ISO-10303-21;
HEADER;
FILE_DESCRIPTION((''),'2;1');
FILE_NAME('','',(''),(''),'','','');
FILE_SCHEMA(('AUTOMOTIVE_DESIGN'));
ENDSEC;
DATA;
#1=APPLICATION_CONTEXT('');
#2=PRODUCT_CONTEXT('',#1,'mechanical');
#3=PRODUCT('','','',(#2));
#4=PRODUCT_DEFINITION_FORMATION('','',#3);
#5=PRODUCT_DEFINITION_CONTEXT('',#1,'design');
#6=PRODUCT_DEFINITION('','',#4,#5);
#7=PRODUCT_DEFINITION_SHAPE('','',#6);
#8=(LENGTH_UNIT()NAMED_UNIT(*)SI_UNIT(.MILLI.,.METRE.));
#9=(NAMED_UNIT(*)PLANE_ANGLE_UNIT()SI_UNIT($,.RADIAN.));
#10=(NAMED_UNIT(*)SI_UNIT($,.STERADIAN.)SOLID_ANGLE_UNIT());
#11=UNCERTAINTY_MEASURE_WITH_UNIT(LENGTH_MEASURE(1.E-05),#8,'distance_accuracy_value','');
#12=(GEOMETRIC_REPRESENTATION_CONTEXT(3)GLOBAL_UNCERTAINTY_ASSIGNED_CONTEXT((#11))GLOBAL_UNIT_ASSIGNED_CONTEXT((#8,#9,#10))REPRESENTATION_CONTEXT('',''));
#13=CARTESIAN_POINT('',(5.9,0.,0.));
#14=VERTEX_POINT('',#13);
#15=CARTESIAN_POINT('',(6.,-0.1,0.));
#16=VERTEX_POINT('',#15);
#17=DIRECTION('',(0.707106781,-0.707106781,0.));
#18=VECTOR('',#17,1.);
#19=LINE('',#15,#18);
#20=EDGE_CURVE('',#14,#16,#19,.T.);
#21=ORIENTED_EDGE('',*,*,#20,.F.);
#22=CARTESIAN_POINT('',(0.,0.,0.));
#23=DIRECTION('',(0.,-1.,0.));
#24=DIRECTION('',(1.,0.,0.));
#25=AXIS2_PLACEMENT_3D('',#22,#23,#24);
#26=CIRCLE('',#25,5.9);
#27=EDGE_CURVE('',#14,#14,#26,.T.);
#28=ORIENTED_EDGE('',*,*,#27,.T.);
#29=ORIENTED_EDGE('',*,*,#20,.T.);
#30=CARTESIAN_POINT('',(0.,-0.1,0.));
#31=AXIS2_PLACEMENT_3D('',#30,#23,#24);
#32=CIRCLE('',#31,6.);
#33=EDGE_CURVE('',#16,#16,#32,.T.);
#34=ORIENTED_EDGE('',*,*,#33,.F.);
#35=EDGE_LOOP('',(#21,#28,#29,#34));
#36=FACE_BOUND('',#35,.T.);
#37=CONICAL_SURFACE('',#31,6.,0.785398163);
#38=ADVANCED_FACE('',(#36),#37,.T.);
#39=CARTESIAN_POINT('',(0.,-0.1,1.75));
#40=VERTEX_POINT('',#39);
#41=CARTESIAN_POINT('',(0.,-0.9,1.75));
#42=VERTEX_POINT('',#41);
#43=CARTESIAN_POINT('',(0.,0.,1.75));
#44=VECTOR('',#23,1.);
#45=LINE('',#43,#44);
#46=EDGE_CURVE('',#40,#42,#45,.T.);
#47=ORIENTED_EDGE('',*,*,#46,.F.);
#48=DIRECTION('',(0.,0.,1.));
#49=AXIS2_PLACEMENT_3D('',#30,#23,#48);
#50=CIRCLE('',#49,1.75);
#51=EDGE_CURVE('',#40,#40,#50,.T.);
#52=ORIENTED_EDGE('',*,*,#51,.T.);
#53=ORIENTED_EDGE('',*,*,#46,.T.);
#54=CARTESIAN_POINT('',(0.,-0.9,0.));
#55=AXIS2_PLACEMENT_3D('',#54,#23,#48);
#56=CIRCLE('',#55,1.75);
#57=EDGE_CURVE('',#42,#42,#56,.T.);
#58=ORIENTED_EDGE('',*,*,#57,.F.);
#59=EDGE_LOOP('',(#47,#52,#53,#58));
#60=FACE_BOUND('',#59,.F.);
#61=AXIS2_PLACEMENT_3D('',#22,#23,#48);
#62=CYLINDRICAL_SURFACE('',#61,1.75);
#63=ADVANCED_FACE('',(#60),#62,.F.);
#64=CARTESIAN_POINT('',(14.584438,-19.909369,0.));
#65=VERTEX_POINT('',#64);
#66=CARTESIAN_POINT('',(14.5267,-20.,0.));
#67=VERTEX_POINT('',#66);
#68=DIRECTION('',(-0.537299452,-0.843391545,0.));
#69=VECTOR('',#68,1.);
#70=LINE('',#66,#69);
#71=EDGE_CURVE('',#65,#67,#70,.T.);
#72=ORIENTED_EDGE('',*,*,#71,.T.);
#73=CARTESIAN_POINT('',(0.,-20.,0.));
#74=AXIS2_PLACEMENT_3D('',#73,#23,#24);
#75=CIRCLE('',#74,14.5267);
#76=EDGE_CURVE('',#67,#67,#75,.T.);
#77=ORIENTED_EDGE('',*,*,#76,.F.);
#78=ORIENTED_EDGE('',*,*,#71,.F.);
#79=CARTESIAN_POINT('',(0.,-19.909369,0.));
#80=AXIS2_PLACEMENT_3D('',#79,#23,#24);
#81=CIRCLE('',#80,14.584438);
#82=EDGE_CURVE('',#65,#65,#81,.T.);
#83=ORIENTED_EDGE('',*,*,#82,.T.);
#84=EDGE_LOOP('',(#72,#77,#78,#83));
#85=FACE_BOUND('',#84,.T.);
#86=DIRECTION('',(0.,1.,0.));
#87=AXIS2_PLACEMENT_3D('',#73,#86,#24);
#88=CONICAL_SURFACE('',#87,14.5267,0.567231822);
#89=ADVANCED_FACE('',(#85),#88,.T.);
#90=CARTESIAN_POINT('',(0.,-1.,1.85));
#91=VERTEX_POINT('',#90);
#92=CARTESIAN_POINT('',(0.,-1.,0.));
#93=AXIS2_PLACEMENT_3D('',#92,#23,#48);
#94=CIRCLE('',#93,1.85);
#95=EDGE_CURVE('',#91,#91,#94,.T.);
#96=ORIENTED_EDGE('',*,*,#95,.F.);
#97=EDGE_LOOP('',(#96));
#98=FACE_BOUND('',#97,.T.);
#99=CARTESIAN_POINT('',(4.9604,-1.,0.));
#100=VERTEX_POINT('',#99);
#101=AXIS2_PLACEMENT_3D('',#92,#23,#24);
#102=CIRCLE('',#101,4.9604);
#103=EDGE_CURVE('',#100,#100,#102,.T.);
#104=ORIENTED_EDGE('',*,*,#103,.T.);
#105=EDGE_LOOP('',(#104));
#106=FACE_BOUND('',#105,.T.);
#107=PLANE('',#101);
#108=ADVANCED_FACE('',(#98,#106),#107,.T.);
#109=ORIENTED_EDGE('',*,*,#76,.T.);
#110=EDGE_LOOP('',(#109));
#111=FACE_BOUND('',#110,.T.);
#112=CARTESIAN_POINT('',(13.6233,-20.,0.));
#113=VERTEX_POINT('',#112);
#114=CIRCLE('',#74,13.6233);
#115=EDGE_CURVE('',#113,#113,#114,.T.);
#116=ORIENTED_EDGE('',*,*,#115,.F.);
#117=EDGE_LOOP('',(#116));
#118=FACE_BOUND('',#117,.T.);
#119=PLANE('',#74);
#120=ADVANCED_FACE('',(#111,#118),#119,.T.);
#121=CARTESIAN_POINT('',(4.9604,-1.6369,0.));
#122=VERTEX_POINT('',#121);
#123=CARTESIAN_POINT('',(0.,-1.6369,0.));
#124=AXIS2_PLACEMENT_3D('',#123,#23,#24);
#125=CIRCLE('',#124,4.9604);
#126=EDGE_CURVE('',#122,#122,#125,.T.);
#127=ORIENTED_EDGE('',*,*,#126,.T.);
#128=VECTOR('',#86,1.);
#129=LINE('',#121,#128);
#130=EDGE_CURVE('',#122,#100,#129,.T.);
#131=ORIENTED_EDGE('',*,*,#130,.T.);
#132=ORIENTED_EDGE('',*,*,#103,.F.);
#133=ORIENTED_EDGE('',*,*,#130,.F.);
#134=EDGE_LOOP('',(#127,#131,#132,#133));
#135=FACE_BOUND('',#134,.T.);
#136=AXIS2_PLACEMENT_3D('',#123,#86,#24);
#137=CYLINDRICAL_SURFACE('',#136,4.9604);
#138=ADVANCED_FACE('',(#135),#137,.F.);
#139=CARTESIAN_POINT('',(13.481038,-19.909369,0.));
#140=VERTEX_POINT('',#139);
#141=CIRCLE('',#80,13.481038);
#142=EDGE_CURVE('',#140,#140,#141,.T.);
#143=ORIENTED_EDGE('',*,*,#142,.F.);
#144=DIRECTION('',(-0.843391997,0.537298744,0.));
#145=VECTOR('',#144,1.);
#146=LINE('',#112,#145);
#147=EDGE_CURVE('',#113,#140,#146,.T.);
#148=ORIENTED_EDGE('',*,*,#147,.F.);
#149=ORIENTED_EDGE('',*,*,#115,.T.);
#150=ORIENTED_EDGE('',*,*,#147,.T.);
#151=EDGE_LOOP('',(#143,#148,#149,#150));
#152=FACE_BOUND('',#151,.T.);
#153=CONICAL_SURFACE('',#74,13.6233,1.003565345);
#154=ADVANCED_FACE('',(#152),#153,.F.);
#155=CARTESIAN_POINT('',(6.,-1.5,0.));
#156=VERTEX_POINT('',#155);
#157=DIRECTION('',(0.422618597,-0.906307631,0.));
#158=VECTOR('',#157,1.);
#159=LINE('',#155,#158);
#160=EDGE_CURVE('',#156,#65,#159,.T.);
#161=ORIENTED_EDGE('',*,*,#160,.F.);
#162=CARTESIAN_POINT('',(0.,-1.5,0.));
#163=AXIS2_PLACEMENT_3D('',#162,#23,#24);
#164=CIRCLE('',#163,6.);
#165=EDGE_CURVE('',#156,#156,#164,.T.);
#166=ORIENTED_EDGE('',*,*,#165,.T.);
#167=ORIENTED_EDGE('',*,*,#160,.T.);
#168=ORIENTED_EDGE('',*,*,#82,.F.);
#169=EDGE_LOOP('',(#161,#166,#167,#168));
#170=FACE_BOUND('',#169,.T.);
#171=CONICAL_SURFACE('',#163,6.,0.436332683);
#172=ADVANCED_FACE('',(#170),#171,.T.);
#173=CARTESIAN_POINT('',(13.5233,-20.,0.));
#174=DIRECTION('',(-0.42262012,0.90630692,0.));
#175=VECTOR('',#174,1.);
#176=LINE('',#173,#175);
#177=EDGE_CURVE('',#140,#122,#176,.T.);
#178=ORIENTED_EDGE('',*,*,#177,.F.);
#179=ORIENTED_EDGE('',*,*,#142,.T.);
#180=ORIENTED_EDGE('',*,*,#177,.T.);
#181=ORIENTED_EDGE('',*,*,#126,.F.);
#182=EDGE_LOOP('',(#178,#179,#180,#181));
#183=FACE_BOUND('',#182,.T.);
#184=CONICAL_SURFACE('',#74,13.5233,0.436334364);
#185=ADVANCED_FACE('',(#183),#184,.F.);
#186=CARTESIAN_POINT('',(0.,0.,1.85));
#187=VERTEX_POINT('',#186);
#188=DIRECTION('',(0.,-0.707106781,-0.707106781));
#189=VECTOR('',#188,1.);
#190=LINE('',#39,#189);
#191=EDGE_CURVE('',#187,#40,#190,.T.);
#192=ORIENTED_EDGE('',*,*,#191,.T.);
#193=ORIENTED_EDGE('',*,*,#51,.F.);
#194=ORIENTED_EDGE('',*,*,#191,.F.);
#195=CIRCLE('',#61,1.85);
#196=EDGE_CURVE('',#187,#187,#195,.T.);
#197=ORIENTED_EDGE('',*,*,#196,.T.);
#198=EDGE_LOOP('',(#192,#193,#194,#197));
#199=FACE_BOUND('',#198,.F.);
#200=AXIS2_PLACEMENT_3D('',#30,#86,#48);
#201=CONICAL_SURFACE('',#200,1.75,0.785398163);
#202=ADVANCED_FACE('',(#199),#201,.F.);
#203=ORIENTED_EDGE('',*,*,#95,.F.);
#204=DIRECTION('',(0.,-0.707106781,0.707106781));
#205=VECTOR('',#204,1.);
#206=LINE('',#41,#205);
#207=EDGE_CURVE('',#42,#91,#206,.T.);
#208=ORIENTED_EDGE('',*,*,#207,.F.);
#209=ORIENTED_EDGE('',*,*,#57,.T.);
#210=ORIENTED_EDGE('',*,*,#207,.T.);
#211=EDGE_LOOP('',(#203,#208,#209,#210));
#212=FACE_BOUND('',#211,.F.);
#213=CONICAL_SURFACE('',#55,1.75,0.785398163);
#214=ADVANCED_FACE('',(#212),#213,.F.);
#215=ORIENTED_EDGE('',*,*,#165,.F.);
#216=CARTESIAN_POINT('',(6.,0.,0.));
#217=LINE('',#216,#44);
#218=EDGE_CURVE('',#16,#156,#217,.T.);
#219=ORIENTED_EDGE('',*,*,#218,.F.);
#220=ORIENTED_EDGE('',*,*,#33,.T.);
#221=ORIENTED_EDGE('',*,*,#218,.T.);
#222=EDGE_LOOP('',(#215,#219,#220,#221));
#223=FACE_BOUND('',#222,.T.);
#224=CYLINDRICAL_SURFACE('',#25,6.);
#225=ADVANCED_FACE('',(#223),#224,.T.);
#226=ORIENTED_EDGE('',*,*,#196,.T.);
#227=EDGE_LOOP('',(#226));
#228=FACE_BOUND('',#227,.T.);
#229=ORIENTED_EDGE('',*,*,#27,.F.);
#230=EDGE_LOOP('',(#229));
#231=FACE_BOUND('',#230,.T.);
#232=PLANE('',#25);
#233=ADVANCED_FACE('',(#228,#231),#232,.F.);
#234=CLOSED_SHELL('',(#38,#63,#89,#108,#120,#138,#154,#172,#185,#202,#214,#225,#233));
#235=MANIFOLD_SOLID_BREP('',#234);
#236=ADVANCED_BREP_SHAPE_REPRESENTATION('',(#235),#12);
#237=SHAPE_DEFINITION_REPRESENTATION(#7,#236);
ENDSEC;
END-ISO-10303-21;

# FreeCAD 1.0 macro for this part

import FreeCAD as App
import Part
import Sketcher
from FreeCAD import Vector
Q = App.Units.Quantity


def edges_at(feature, points):
    """Names of the edges that pass closest to the given points."""
    edges = feature.Shape.Edges
    near = lambda p: min(range(len(edges)), key=lambda i: edges[i].distToShape(Part.Vertex(*p))[0])
    return sorted({f"Edge{near(p) + 1}" for p in points})

doc = App.newDocument("Part")
body = doc.addObject("PartDesign::Body", "Body")

sketch1 = body.newObject("Sketcher::SketchObject", "Sketch")
sketch1.AttachmentSupport = (doc.getObject("XY_Plane"), [""])
sketch1.MapMode = "FlatFace"
sketch1.addGeometry(Part.LineSegment(Vector(6, 0, 0), Vector(0, 0, 0)), False)
sketch1.addGeometry(Part.LineSegment(Vector(0, 0, 0), Vector(0, -1, 0)), False)
sketch1.addGeometry(Part.LineSegment(Vector(0, -1, 0), Vector(5, -1, 0)), False)
sketch1.addGeometry(Part.LineSegment(Vector(5, -1, 0), Vector(5, -1.6, 0)), False)
sketch1.addGeometry(Part.LineSegment(Vector(5, -1.6, 0), Vector(13.5, -20, 0)), False)
sketch1.addGeometry(Part.LineSegment(Vector(13.5, -20, 0), Vector(14.6, -20, 0)), False)
sketch1.addGeometry(Part.LineSegment(Vector(14.6, -20, 0), Vector(6, -1.5, 0)), False)
sketch1.addGeometry(Part.LineSegment(Vector(6, -1.5, 0), Vector(6, 0, 0)), False)
sketch1.addConstraint(Sketcher.Constraint("Coincident", 0, 2, 1, 1))
sketch1.addConstraint(Sketcher.Constraint("Coincident", 1, 2, 2, 1))
sketch1.addConstraint(Sketcher.Constraint("Coincident", 2, 2, 3, 1))
sketch1.addConstraint(Sketcher.Constraint("Coincident", 3, 2, 4, 1))
sketch1.addConstraint(Sketcher.Constraint("Coincident", 4, 2, 5, 1))
sketch1.addConstraint(Sketcher.Constraint("Coincident", 5, 2, 6, 1))
sketch1.addConstraint(Sketcher.Constraint("Coincident", 6, 2, 7, 1))
sketch1.addConstraint(Sketcher.Constraint("Coincident", 7, 2, 0, 1))
sketch1.addConstraint(Sketcher.Constraint("Horizontal", 0))
sketch1.addConstraint(Sketcher.Constraint("Vertical", 1))
sketch1.addConstraint(Sketcher.Constraint("Horizontal", 2))
sketch1.addConstraint(Sketcher.Constraint("Vertical", 3))
sketch1.addConstraint(Sketcher.Constraint("Horizontal", 5))
sketch1.addConstraint(Sketcher.Constraint("Vertical", 7))
sketch1.addConstraint(Sketcher.Constraint("Coincident", 0, 2, -1, 1))
sketch1.addConstraint(Sketcher.Constraint("Parallel", 4, 6))
sketch1.addConstraint(Sketcher.Constraint("DistanceX", 0, 2, 0, 1, Q("6 mm")))
sketch1.addConstraint(Sketcher.Constraint("DistanceY", 1, 2, 1, 1, Q("1 mm")))
sketch1.addConstraint(Sketcher.Constraint("DistanceY", 7, 1, 7, 2, Q("1.5 mm")))
sketch1.addConstraint(Sketcher.Constraint("DistanceY", 4, 2, -1, 1, Q("20 mm")))
sketch1.addConstraint(Sketcher.Constraint("Angle", 4, Q("-65 deg")))
sketch1.addConstraint(Sketcher.Constraint("DistanceY", 3, 2, 3, 1, Q("0.637 mm")))
sketch1.addConstraint(Sketcher.Constraint("DistanceX", 2, 1, 2, 2, Q("4.9604 mm")))
revolution = body.newObject("PartDesign::Revolution", "Revolution")
revolution.Profile = sketch1
revolution.ReferenceAxis = (sketch1, ["V_Axis"])
revolution.Angle = 360
doc.recompute()

chamfer = body.newObject("PartDesign::Chamfer", "Chamfer")
chamfer.Base = (revolution, edges_at(revolution, [(-14.627, -20, 0), (-13.523, -20, 0), (-6, 0, 0)]))
chamfer.Size = 0.1

sketch2 = body.newObject("Sketcher::SketchObject", "Sketch001")
sketch2.AttachmentSupport = (doc.getObject("XZ_Plane"), [""])
sketch2.MapMode = "FlatFace"
sketch2.addGeometry(Part.Circle(Vector(0, 0, 0), Vector(0, 0, 1), 1.8), False)
sketch2.addConstraint(Sketcher.Constraint("Coincident", 0, 3, -1, 1))
sketch2.addConstraint(Sketcher.Constraint("Diameter", 0, Q("3.5 mm")))
doc.recompute()
hole = body.newObject("PartDesign::Hole", "Hole")
hole.Profile = sketch2
hole.ThreadType = "None"
hole.Diameter = 3.5
hole.DepthType = "Dimension"
hole.Depth = 53.6
hole.DrillPoint = "Angled"
hole.DrillPointAngle = 118
hole.Reversed = True
doc.recompute()

chamfer2 = body.newObject("PartDesign::Chamfer", "Chamfer001")
chamfer2.Base = (hole, edges_at(hole, [(0, 0, -1.75), (0, -1, -1.75)]))
chamfer2.Size = 0.1

doc.recompute()
